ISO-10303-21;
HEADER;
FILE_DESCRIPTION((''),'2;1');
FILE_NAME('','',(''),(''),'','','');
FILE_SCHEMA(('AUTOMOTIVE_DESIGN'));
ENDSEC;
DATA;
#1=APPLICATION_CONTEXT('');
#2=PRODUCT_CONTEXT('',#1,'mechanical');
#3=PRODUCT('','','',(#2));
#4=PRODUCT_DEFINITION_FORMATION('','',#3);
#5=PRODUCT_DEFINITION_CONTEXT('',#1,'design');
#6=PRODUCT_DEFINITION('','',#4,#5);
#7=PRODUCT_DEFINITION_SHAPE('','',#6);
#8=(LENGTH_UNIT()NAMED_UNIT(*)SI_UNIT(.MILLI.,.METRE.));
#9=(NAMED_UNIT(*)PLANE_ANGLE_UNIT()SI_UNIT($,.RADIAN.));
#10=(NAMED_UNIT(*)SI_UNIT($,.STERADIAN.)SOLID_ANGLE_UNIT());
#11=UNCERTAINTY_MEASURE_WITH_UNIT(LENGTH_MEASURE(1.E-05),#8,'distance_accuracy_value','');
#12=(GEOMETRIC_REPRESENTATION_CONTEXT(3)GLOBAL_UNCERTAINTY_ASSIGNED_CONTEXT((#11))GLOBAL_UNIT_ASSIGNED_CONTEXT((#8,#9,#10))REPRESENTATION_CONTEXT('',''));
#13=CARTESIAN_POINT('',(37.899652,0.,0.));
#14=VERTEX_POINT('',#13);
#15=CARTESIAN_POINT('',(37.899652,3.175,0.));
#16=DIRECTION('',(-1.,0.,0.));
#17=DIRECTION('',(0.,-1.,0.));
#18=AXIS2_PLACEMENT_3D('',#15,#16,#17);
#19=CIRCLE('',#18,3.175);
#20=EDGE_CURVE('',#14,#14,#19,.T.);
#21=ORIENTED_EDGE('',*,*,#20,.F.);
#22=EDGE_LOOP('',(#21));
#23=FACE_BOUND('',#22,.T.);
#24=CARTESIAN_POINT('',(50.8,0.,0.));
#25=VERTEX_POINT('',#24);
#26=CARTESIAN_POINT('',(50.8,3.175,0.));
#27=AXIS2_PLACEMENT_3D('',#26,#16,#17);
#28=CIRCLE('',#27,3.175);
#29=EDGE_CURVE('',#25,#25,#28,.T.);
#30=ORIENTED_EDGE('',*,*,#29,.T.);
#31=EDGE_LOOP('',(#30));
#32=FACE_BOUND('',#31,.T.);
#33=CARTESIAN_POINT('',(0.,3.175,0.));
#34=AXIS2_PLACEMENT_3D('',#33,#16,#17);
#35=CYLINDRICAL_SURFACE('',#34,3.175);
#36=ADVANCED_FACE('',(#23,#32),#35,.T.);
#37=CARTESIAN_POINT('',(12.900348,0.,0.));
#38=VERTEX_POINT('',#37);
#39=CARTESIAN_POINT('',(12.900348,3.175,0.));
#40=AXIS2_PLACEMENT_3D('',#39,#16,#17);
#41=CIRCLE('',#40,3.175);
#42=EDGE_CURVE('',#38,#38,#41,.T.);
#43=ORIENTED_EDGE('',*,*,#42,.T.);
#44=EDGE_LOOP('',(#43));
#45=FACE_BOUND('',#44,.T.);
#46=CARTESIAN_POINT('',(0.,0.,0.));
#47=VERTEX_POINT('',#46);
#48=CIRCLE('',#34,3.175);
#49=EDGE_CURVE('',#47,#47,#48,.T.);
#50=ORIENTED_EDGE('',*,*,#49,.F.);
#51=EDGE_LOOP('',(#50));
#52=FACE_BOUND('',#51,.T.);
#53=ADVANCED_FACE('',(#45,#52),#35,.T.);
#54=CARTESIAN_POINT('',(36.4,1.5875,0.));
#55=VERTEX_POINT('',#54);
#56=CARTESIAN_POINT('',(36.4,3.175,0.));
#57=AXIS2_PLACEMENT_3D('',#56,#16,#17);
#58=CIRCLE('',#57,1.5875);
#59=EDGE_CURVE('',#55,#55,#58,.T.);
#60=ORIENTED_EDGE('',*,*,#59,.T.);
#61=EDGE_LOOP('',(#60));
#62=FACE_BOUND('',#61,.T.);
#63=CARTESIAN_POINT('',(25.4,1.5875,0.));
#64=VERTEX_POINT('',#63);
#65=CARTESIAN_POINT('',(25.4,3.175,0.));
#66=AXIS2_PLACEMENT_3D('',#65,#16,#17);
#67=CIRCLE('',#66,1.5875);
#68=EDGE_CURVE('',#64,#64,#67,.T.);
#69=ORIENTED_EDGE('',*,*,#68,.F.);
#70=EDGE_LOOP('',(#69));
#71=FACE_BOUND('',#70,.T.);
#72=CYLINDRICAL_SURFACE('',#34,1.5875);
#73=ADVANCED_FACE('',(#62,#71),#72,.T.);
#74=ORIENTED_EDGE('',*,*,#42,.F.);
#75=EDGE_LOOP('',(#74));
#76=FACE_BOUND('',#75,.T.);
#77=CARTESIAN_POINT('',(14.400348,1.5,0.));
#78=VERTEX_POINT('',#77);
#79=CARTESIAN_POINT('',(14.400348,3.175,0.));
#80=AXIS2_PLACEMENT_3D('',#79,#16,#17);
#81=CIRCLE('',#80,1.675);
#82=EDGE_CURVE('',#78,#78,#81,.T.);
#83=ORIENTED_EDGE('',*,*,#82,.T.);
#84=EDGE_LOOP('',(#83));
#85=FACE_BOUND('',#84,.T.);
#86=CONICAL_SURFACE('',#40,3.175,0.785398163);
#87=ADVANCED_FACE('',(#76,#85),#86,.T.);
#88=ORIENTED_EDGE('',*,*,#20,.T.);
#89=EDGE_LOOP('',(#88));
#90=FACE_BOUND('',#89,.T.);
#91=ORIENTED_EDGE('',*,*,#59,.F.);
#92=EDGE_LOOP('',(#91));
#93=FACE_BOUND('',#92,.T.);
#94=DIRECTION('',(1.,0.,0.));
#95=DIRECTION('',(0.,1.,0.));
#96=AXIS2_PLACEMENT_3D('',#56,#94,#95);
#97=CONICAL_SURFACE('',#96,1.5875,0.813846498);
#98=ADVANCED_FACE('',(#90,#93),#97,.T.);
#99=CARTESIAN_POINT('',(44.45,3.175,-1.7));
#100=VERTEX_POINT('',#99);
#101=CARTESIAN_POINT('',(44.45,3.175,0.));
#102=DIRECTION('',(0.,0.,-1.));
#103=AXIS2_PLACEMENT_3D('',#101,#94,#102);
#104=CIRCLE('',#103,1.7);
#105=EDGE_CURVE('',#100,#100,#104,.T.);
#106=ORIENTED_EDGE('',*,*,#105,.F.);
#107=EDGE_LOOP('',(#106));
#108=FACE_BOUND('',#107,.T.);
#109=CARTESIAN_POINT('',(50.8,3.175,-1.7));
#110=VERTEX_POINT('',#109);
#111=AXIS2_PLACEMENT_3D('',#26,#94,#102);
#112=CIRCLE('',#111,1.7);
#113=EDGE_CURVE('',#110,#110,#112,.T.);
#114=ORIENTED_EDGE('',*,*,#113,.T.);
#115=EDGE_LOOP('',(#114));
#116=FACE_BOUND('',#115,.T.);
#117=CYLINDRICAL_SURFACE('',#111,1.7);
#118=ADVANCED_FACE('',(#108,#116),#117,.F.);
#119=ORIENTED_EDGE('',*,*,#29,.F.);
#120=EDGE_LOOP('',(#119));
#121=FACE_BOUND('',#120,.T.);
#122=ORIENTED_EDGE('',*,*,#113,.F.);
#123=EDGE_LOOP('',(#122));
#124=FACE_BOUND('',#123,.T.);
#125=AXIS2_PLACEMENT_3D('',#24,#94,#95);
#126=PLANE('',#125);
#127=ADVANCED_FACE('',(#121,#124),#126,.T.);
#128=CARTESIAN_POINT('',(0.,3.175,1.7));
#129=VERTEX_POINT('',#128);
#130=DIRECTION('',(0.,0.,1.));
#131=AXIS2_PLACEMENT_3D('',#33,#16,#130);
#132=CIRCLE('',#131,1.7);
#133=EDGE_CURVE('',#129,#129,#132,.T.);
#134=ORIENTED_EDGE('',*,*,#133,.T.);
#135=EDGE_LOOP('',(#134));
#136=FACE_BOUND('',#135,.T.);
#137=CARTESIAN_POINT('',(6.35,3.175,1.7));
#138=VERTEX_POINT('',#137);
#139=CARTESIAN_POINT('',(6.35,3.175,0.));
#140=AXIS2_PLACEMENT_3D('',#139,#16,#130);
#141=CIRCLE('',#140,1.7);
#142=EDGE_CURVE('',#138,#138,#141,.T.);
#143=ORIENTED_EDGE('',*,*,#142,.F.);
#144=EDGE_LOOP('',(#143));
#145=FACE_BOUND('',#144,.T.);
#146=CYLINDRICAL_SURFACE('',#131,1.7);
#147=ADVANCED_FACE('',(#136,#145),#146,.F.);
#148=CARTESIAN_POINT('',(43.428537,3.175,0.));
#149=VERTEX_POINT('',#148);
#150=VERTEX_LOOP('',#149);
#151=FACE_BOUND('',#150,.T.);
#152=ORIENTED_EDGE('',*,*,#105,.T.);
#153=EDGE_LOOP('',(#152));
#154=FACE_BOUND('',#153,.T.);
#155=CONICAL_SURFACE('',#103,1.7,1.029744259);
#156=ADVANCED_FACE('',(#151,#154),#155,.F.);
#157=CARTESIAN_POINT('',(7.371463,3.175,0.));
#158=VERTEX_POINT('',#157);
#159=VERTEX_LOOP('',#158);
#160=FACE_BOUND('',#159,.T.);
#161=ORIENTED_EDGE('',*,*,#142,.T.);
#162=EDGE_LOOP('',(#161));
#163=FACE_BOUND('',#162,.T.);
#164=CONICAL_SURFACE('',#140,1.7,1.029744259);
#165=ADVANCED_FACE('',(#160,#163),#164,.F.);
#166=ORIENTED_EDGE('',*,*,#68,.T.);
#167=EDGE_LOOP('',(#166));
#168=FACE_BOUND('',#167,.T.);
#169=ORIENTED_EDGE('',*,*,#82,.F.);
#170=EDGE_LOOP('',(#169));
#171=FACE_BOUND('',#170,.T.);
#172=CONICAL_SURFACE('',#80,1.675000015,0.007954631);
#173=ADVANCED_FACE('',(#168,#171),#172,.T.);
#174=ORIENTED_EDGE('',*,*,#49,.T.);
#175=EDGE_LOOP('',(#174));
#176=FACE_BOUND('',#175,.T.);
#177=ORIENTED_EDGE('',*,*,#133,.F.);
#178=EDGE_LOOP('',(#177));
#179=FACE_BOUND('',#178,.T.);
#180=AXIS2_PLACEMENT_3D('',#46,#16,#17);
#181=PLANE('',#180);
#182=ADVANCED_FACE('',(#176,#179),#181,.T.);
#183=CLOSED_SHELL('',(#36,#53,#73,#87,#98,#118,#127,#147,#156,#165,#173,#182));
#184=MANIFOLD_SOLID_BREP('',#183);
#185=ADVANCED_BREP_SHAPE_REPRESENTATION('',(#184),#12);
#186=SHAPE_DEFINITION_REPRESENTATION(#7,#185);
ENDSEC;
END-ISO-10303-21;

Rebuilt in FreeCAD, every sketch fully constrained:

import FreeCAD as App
import Part
import Sketcher

V = App.Vector
Q = App.Units.Quantity

doc = App.newDocument("Part")
body = doc.addObject("PartDesign::Body", "Body")

sketch1 = body.newObject("Sketcher::SketchObject", "Sketch")
sketch1.AttachmentSupport = (doc.getObject("XY_Plane"), [""])
sketch1.MapMode = "FlatFace"
sketch1.addGeometry([
    Part.LineSegment(V(14.4, 1.5, 0), V(25.4, 1.6, 0)),
    Part.LineSegment(V(25.4, 1.6, 0), V(36.4, 1.6, 0)),
    Part.LineSegment(V(36.4, 1.6, 0), V(37.9, 0, 0)),
    Part.LineSegment(V(37.9, 0, 0), V(50.8, 0, 0)),
    Part.LineSegment(V(50.8, 0, 0), V(50.8, 3.2, 0)),
    Part.LineSegment(V(50.8, 3.2, 0), V(0, 3.2, 0)),
    Part.LineSegment(V(0, 3.2, 0), V(0, 0, 0)),
    Part.LineSegment(V(0, 0, 0), V(12.9, 0, 0)),
    Part.LineSegment(V(12.9, 0, 0), V(14.4, 1.5, 0)),
], False)
sketch1.addGeometry(Part.LineSegment(V(0, 3.2, 0), V(50.8, 3.2, 0)), True)
sketch1.addConstraint([
    Sketcher.Constraint("Coincident", 0, 2, 1, 1),
    Sketcher.Constraint("Coincident", 1, 2, 2, 1),
    Sketcher.Constraint("Coincident", 2, 2, 3, 1),
    Sketcher.Constraint("Coincident", 3, 2, 4, 1),
    Sketcher.Constraint("Coincident", 4, 2, 5, 1),
    Sketcher.Constraint("Coincident", 5, 2, 6, 1),
    Sketcher.Constraint("Coincident", 6, 2, 7, 1),
    Sketcher.Constraint("Coincident", 7, 2, 8, 1),
    Sketcher.Constraint("Coincident", 8, 2, 0, 1),
    Sketcher.Constraint("Horizontal", 1),
    Sketcher.Constraint("Horizontal", 3),
    Sketcher.Constraint("Vertical", 4),
    Sketcher.Constraint("Horizontal", 5),
    Sketcher.Constraint("Vertical", 6),
    Sketcher.Constraint("Horizontal", 7),
    Sketcher.Constraint("Horizontal", 9),
    Sketcher.Constraint("Coincident", 6, 2, -1, 1),
    Sketcher.Constraint("Coincident", 9, 1, 5, 2),
    Sketcher.Constraint("PointOnObject", 2, 2, -1),
    Sketcher.Constraint("Vertical", 3, 2, 9, 2),
    Sketcher.Constraint("Equal", 3, 7),
    Sketcher.Constraint("DistanceX", 5, 2, 5, 1, Q("2 in")),
    Sketcher.Constraint("DistanceX", -1, 1, 0, 2, Q("1 in")),
    Sketcher.Constraint("Angle", 8, Q("45 deg")),
    Sketcher.Constraint("DistanceY", 4, 1, 4, 2, Q("0.125 in")),
    Sketcher.Constraint("DistanceY", -1, 1, 0, 2, Q("0.0625 in")),
    Sketcher.Constraint("DistanceX", 1, 1, 1, 2, 11.0),
    Sketcher.Constraint("Distance", 0, 11.0),
    Sketcher.Constraint("DistanceX", 3, 1, 3, 2, 12.900348),
])
revolution = body.newObject("PartDesign::Revolution", "Revolution")
revolution.Profile = sketch1
revolution.ReferenceAxis = (sketch1, ["Axis0"])
revolution.Angle = 360

sketch2 = body.newObject("Sketcher::SketchObject", "Sketch001")
sketch2.AttachmentSupport = (doc.getObject("XZ_Plane"), [""])
sketch2.MapMode = "FlatFace"
sketch2.AttachmentOffset = App.Placement(V(0, 0, -0.125 * 25.4), App.Rotation())
sketch2.addGeometry([
    Part.LineSegment(V(7.4, 0, 0), V(0, 0, 0)),
    Part.LineSegment(V(0, 0, 0), V(0, 1.7, 0)),
    Part.LineSegment(V(0, 1.7, 0), V(6.3, 1.7, 0)),
    Part.LineSegment(V(6.3, 1.7, 0), V(7.4, 0, 0)),
], False)
sketch2.addConstraint([
    Sketcher.Constraint("Coincident", 0, 2, 1, 1),
    Sketcher.Constraint("Coincident", 1, 2, 2, 1),
    Sketcher.Constraint("Coincident", 2, 2, 3, 1),
    Sketcher.Constraint("Coincident", 3, 2, 0, 1),
    Sketcher.Constraint("Horizontal", 0),
    Sketcher.Constraint("Vertical", 1),
    Sketcher.Constraint("Horizontal", 2),
    Sketcher.Constraint("Coincident", 0, 2, -1, 1),
    Sketcher.Constraint("Angle", 3, Q("-59 deg")),
    Sketcher.Constraint("DistanceX", 2, 1, 2, 2, Q("0.25 in")),
    Sketcher.Constraint("DistanceY", 1, 1, 1, 2, 1.7),
])
groove = body.newObject("PartDesign::Groove", "Groove")
groove.Profile = sketch2
groove.ReferenceAxis = (sketch2, ["H_Axis"])
groove.Angle = 360
doc.recompute()

datumplane = body.newObject("PartDesign::Plane", "DatumPlane")
datumplane.AttachmentSupport = (doc.getObject("YZ_Plane"), [""])
datumplane.MapMode = "FlatFace"
datumplane.AttachmentOffset = App.Placement(V(0, 0, 1 * 25.4), App.Rotation())
mirrored = body.newObject("PartDesign::Mirrored", "Mirrored")
mirrored.Originals = [groove]
mirrored.MirrorPlane = (datumplane, [""])
body.Tip = mirrored

doc.recompute()
